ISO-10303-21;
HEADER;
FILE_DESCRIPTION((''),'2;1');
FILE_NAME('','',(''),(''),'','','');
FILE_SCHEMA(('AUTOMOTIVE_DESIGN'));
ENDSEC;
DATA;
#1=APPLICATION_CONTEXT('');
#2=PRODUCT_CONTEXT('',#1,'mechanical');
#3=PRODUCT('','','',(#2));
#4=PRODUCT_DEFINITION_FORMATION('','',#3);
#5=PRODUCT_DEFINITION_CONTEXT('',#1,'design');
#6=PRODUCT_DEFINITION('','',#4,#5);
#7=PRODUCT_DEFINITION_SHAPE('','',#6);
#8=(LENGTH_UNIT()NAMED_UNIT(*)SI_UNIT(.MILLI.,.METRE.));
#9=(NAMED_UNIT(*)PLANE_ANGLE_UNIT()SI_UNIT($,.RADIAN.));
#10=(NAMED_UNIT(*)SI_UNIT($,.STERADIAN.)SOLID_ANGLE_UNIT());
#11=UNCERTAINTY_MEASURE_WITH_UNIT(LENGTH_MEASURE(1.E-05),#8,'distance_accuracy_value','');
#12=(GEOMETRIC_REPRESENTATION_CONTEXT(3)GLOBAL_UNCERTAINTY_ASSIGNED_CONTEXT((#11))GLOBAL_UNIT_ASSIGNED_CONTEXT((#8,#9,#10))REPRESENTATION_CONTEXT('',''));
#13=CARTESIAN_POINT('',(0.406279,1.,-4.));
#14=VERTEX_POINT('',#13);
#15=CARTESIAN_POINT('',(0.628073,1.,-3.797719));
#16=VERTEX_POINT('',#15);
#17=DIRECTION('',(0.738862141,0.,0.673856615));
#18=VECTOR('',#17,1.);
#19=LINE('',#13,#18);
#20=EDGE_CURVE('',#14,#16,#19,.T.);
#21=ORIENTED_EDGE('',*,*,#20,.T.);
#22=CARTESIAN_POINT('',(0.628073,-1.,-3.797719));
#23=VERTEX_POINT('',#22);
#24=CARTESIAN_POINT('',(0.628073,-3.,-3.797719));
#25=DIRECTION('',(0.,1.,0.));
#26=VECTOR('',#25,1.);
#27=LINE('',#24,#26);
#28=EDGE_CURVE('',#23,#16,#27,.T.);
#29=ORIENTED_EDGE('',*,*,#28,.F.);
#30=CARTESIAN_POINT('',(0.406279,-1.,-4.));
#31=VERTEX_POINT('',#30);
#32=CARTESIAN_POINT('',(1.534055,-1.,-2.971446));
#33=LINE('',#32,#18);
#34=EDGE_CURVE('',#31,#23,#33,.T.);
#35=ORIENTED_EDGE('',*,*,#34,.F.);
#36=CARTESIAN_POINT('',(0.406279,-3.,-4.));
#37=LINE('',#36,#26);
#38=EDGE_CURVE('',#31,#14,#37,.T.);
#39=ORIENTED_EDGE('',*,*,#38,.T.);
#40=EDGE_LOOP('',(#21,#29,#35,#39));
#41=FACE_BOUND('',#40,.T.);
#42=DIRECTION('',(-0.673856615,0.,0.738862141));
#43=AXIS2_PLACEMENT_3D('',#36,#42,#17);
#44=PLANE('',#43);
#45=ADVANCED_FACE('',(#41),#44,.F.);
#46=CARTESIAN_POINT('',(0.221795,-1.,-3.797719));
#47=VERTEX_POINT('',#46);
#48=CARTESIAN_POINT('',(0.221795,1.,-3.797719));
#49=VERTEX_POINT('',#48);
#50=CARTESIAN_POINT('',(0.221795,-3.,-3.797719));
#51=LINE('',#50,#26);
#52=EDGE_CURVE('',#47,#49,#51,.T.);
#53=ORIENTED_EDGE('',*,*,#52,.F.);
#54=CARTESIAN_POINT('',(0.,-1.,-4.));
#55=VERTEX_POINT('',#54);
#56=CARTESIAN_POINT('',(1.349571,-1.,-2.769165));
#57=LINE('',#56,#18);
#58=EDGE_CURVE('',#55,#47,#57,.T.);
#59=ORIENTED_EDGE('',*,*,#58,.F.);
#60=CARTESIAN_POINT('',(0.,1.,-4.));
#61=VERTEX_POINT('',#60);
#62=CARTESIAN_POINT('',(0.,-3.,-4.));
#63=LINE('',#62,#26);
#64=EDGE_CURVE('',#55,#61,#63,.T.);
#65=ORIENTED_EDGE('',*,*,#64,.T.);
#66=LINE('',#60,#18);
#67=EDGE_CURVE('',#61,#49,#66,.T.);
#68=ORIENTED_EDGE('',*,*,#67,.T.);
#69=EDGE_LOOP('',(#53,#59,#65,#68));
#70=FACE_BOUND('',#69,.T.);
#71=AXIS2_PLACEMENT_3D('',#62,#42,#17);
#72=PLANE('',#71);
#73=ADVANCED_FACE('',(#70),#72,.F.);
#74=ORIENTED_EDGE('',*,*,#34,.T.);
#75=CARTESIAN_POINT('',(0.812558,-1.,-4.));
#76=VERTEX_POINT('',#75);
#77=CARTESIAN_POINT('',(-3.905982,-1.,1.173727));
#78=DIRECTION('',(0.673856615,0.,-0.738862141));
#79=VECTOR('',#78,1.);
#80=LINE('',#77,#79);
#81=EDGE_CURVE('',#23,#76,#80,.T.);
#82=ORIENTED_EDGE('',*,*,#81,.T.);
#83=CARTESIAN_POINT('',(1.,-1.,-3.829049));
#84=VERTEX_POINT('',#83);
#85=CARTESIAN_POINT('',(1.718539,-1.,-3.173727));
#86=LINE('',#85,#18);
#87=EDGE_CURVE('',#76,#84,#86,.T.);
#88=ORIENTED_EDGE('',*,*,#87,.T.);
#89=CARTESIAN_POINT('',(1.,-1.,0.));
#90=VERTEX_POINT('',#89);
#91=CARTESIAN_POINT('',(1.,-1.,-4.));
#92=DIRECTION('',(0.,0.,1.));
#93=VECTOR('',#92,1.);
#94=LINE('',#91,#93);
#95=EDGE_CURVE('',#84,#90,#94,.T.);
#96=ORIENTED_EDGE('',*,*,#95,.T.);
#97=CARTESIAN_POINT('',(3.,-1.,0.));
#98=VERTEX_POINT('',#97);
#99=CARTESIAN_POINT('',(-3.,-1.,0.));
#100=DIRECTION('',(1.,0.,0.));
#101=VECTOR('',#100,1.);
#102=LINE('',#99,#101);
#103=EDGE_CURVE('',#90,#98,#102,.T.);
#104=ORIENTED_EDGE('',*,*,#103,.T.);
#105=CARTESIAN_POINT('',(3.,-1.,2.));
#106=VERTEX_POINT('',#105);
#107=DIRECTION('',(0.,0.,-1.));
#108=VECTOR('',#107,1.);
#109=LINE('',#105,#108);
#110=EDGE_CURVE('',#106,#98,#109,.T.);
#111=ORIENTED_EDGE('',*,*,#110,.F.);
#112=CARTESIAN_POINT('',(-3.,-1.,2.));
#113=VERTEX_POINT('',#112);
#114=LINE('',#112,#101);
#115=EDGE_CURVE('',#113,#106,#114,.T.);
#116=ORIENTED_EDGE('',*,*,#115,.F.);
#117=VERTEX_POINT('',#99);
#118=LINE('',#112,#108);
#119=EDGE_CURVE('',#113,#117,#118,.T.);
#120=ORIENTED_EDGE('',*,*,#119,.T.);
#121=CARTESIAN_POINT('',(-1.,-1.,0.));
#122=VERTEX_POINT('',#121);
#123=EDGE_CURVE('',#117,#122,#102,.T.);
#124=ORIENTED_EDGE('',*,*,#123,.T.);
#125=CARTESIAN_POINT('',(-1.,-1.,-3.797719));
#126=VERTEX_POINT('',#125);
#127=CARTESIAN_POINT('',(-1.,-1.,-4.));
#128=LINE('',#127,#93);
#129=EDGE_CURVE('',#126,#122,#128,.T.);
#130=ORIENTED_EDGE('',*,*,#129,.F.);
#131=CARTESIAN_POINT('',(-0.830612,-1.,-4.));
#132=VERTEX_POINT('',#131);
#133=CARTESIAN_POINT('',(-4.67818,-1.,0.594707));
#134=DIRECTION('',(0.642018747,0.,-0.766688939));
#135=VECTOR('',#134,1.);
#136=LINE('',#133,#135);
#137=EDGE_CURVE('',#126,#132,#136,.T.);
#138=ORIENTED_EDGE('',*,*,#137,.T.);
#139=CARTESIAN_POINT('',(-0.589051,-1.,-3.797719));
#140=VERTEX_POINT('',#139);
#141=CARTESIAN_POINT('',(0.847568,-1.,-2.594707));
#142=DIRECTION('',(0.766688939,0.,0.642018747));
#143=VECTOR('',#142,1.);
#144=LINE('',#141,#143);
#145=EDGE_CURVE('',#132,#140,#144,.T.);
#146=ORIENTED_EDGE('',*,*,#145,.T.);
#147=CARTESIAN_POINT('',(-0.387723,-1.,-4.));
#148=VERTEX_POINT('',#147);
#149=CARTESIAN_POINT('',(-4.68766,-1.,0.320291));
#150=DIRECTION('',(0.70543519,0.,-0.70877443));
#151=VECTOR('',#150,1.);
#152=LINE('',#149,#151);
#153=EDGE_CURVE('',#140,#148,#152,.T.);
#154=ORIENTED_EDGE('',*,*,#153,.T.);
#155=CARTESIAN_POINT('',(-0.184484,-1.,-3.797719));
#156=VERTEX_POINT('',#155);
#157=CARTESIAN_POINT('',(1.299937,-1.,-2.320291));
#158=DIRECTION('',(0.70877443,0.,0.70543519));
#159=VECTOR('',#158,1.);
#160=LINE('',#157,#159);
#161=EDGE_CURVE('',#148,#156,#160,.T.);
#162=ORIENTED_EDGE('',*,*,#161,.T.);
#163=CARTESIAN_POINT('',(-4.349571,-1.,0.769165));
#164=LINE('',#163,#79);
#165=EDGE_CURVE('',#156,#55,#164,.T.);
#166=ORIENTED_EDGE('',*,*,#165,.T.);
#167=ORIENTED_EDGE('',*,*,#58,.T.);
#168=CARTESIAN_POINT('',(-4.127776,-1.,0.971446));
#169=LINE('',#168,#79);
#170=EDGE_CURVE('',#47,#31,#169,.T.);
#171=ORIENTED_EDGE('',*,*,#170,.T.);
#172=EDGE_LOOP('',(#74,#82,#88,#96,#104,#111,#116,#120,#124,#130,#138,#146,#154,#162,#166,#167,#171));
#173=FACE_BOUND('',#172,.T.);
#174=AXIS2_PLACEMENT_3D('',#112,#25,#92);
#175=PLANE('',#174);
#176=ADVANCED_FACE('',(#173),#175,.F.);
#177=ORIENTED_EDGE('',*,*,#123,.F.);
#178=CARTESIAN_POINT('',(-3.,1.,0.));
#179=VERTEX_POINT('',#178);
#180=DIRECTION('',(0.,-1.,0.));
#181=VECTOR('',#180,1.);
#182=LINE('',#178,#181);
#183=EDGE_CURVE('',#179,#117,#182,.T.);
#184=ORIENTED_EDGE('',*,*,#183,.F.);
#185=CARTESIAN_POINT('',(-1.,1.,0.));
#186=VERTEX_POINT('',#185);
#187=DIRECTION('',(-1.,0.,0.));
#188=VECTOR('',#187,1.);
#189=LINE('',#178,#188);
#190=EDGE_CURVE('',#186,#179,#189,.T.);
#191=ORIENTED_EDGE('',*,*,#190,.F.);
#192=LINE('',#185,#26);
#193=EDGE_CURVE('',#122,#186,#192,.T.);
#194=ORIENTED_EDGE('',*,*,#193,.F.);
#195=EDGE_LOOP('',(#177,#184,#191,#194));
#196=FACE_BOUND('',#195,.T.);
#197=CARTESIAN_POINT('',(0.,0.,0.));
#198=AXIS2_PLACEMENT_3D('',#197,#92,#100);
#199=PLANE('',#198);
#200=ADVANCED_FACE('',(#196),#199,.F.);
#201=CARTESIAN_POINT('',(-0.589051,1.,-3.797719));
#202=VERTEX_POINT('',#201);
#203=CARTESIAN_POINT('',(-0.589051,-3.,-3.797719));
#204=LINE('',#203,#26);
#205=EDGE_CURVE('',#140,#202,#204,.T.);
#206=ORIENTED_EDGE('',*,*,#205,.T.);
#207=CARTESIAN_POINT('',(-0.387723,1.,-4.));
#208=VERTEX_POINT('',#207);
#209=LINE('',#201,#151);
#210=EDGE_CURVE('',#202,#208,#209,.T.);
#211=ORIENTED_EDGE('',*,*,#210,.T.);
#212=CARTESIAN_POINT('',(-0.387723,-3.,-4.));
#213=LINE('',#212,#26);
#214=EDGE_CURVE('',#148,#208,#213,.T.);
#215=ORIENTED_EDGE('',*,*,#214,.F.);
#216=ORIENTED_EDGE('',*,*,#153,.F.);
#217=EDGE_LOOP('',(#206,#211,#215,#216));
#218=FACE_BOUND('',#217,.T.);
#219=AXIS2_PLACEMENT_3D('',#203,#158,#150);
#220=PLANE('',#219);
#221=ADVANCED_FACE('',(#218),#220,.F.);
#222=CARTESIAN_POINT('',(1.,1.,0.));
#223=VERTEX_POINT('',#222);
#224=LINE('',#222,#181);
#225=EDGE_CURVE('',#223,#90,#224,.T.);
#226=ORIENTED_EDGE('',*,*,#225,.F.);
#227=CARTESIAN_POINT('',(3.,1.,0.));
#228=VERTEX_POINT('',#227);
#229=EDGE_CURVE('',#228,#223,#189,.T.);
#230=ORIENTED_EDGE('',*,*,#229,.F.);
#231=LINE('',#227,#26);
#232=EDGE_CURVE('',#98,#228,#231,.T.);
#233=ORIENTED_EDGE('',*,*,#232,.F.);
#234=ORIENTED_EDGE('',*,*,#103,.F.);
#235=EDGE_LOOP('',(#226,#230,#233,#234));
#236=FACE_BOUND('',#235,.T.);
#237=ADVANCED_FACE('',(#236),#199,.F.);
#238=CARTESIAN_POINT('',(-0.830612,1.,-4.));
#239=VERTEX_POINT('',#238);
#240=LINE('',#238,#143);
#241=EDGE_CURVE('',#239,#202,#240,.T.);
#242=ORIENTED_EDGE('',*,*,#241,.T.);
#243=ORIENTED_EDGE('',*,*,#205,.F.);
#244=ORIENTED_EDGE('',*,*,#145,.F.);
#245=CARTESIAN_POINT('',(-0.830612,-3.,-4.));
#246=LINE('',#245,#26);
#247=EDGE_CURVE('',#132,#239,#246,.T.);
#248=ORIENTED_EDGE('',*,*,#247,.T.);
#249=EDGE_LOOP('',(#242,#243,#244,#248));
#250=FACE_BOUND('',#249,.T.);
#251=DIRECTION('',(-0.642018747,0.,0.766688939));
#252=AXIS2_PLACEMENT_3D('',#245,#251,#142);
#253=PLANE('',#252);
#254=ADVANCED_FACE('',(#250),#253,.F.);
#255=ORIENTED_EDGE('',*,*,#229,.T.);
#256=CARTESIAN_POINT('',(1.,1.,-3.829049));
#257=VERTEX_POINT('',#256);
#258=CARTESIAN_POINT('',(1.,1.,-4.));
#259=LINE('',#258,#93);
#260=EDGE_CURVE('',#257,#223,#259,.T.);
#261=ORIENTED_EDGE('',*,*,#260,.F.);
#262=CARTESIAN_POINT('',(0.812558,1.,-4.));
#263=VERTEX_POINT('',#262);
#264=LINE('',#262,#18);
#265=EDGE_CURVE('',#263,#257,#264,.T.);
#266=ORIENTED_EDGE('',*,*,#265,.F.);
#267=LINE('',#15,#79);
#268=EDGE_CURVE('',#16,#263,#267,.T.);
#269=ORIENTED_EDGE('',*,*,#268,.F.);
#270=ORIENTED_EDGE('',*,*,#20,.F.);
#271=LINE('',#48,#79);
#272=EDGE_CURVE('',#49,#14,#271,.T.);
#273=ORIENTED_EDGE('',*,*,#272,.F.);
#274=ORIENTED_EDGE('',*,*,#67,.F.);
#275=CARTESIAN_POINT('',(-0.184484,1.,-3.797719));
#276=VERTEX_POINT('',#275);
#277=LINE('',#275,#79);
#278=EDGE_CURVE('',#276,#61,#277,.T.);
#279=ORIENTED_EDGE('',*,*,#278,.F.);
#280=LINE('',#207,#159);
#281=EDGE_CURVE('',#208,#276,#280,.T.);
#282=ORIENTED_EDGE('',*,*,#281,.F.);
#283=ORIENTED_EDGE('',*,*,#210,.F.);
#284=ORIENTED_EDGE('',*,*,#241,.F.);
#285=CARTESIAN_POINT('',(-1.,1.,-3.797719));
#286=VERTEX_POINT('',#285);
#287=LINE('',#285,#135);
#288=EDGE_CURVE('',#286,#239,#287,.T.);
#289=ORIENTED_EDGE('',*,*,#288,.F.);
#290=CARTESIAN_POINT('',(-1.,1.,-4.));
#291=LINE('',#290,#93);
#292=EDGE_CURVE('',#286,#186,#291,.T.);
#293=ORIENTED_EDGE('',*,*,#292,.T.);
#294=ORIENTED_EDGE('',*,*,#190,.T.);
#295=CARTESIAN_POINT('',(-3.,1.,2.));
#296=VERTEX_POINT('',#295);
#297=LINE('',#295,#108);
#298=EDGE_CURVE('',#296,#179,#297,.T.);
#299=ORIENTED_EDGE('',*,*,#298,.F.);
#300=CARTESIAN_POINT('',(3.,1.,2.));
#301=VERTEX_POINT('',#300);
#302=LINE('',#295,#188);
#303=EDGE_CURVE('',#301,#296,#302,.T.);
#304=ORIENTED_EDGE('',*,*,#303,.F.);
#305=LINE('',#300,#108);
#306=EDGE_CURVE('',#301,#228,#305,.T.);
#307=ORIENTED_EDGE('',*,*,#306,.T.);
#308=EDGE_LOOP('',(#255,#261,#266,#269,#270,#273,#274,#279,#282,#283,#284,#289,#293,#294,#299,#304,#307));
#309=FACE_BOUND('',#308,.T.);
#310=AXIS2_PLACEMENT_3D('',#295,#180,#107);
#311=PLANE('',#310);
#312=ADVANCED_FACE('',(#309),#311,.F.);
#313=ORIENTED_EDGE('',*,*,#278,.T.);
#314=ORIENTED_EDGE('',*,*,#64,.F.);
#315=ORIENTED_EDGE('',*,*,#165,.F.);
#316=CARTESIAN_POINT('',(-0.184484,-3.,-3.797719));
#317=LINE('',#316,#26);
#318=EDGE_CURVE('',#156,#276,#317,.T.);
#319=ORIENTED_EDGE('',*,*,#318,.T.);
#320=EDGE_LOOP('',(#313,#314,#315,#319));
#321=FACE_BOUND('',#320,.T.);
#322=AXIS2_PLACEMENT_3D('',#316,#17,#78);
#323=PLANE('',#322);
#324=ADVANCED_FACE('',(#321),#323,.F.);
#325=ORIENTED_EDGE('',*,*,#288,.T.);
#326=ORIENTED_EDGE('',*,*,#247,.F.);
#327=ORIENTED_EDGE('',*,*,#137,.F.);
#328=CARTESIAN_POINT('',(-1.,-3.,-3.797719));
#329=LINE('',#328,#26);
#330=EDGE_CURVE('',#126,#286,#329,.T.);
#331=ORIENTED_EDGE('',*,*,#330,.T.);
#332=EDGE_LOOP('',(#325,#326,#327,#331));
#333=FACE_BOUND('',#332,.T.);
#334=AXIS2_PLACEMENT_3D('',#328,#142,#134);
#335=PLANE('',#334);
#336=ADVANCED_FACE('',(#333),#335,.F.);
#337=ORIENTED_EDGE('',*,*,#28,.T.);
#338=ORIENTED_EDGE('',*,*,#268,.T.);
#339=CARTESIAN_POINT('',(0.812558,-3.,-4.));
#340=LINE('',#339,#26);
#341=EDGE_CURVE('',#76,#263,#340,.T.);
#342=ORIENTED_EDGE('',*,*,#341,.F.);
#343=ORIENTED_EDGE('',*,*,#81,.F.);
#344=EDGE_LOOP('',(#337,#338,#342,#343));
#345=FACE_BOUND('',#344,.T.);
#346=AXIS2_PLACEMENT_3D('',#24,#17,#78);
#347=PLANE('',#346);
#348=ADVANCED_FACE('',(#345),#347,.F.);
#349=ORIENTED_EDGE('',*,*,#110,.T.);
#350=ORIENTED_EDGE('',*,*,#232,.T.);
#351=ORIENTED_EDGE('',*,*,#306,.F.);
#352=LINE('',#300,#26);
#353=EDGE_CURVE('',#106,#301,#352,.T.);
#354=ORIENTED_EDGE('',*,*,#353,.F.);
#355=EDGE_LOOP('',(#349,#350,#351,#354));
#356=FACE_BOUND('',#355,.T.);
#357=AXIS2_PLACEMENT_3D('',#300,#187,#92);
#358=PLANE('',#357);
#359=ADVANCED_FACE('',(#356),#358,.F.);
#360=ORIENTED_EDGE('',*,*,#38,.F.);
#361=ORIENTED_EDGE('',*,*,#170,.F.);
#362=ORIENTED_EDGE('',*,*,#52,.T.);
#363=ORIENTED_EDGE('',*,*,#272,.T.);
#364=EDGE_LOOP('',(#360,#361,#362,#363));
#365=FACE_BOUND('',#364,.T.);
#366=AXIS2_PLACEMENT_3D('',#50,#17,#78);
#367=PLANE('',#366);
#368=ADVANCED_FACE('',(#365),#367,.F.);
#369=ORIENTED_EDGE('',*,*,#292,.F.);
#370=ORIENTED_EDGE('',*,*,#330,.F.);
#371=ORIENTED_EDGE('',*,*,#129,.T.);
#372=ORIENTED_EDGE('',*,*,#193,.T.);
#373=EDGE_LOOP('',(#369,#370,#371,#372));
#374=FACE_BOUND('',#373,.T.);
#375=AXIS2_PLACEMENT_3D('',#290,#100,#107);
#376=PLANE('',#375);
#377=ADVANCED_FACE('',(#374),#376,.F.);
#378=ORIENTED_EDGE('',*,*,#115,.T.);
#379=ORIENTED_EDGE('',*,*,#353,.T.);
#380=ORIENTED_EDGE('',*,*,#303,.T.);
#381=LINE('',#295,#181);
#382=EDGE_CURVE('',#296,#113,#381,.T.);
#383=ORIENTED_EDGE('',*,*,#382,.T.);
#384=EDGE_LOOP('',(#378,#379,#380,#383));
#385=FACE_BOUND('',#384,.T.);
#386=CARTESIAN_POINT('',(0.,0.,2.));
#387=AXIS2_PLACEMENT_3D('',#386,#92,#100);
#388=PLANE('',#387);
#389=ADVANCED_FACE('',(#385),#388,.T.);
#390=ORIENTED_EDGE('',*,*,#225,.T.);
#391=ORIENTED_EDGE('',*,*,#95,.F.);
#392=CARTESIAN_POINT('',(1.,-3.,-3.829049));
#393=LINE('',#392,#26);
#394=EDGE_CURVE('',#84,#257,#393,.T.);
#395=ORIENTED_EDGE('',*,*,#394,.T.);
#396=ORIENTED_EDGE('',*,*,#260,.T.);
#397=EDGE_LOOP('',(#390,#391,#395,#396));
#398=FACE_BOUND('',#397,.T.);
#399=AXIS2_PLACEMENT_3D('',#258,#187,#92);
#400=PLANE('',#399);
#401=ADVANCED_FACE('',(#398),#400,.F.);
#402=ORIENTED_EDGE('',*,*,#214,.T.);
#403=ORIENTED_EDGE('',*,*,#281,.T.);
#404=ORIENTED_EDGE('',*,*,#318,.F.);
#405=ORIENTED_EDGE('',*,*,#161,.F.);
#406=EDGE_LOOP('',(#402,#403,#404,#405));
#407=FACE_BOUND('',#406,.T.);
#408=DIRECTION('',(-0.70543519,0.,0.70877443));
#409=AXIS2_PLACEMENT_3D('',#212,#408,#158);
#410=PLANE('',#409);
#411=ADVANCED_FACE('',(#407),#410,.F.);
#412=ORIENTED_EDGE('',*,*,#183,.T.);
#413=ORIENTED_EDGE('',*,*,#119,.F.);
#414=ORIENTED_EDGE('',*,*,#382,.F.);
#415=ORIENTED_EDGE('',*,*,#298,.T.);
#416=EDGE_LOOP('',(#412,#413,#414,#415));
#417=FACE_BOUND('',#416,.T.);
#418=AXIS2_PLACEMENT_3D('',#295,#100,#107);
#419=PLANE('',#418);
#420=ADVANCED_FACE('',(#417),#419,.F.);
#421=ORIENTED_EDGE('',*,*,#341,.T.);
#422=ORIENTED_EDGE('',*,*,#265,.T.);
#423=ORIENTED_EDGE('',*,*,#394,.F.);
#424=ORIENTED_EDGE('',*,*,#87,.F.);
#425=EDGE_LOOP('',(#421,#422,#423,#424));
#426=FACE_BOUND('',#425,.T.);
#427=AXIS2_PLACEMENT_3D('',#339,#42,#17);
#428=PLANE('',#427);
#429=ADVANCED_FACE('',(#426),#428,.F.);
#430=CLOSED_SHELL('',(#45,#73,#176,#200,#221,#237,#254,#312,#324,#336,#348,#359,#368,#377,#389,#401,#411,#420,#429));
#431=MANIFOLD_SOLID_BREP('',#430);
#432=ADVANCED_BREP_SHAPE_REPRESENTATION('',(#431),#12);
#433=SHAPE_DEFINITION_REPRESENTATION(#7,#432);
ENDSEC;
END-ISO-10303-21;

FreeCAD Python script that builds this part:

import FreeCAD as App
import Part
import Sketcher
from FreeCAD import Vector
Q = App.Units.Quantity


def add_polygon(sketch, points):
    """Adds a closed chain of lines whose ends are joined by coincident constraints."""
    first, n = sketch.GeometryCount, len(points)
    for a, b in zip(points, points[1:] + points[:1]):
        sketch.addGeometry(Part.LineSegment(App.Vector(*a, 0), App.Vector(*b, 0)), False)
    for i in range(n):
        sketch.addConstraint(Sketcher.Constraint("Coincident", first + i, 2, first + (i + 1) % n, 1))

doc = App.newDocument("Part")
body = doc.addObject("PartDesign::Body", "Body")

# Sketch on XY plane
sketch1 = body.newObject("Sketcher::SketchObject", "Sketch")
sketch1.AttachmentSupport = (doc.getObject("XY_Plane"), [""])
sketch1.MapMode = "FlatFace"
add_polygon(sketch1, [(-3, 1), (-3, -1), (3, -1), (3, 1)])  # lines 0-3
sketch1.addConstraint([
    Sketcher.Constraint("Vertical", 0),
    Sketcher.Constraint("Horizontal", 1),
    Sketcher.Constraint("Vertical", 2),
    Sketcher.Constraint("Horizontal", 3),
    Sketcher.Constraint("Symmetric", 0, 2, 2, 2, -1, 1),
    Sketcher.Constraint("DistanceX", 1, 1, 1, 2, Q("6 mm")),
    Sketcher.Constraint("DistanceY", 0, 2, 0, 1, Q("2 mm")),
])
pad1 = body.newObject("PartDesign::Pad", "Pad")
pad1.Profile = sketch1
pad1.Length = 2

# Sketch on XY plane
sketch2 = body.newObject("Sketcher::SketchObject", "Sketch001")
sketch2.AttachmentSupport = (doc.getObject("XY_Plane"), [""])
sketch2.MapMode = "FlatFace"
add_polygon(sketch2, [(1, 1), (1, -1), (-1, -1), (-1, 1)])  # lines 0-3
sketch2.addConstraint([
    Sketcher.Constraint("Vertical", 0),
    Sketcher.Constraint("Horizontal", 1),
    Sketcher.Constraint("Vertical", 2),
    Sketcher.Constraint("Horizontal", 3),
    Sketcher.Constraint("Symmetric", 0, 2, 2, 2, -1, 1),
    Sketcher.Constraint("Equal", 3, 0),
    Sketcher.Constraint("DistanceX", 1, 2, 1, 1, Q("2 mm")),
])
pad2 = body.newObject("PartDesign::Pad", "Pad001")
pad2.Profile = sketch2
pad2.Length = 4
pad2.Reversed = True

# Sketch on XZ plane
sketch3 = body.newObject("Sketcher::SketchObject", "Sketch002")
sketch3.AttachmentSupport = (doc.getObject("XZ_Plane"), [""])
sketch3.MapMode = "FlatFace"
sketch3.AttachmentOffset = App.Placement(Vector(0, 0, -1), App.Rotation())
add_polygon(sketch3, [(-1, -3.8), (-0.83, -4), (-0.59, -3.8), (-0.39, -4), (-0.18, -3.8), (0, -4), (0.22, -3.8), (0.41, -4), (0.63, -3.8), (0.81, -4), (1, -3.83), (1.13, -3.83), (1.13, -4.16), (-1.1, -4.16), (-1.1, -3.8)])  # lines 0-14
sketch3.addConstraint([
    Sketcher.Constraint("Horizontal", 10),
    Sketcher.Constraint("Vertical", 11),
    Sketcher.Constraint("Horizontal", 12),
    Sketcher.Constraint("Vertical", 13),
    Sketcher.Constraint("Horizontal", 14),
    Sketcher.Constraint("PointOnObject", 4, 2, -2),
    Sketcher.Constraint("Perpendicular", 0, 1),
    Sketcher.Constraint("Perpendicular", 2, 3),
    Sketcher.Constraint("Perpendicular", 4, 5),
    Sketcher.Constraint("Perpendicular", 5, 6),
    Sketcher.Constraint("Perpendicular", 6, 7),
    Sketcher.Constraint("Perpendicular", 7, 8),
    Sketcher.Constraint("Perpendicular", 8, 9),
    Sketcher.Constraint("Horizontal", 0, 2, 2, 2),
    Sketcher.Constraint("Horizontal", 1, 2, 3, 2),
    Sketcher.Constraint("Horizontal", 2, 2, 4, 2),
    Sketcher.Constraint("Horizontal", 3, 2, 5, 2),
    Sketcher.Constraint("Horizontal", 4, 2, 6, 2),
    Sketcher.Constraint("Horizontal", 5, 2, 7, 2),
    Sketcher.Constraint("Horizontal", 6, 2, 8, 2),
    Sketcher.Constraint("Horizontal", 7, 2, 13, 2),
    Sketcher.Constraint("DistanceY", 0, 2, -1, 1, Q("4 mm")),
    Sketcher.Constraint("DistanceX", -1, 1, 9, 2, Q("1 mm")),
    Sketcher.Constraint("DistanceX", 14, 2, -1, 1, Q("1 mm")),
    Sketcher.Constraint("DistanceY", 13, 1, 13, 2, Q("0.366199 mm")),
    Sketcher.Constraint("DistanceX", 2, 2, 6, 2, Q("0.794002 mm")),
    Sketcher.Constraint("DistanceX", 10, 1, 10, 2, Q("0.133731 mm")),
    Sketcher.Constraint("DistanceY", 11, 2, 11, 1, Q("0.334869 mm")),
    Sketcher.Constraint("Distance", 1, Q("0.31507 mm")),
    Sketcher.Constraint("DistanceX", 12, 2, 12, 1, Q("2.235286 mm")),
])
pocket1 = body.newObject("PartDesign::Pocket", "Pocket")
pocket1.Profile = sketch3
pocket1.Length = 4
pocket1.Reversed = True

doc.recompute()
